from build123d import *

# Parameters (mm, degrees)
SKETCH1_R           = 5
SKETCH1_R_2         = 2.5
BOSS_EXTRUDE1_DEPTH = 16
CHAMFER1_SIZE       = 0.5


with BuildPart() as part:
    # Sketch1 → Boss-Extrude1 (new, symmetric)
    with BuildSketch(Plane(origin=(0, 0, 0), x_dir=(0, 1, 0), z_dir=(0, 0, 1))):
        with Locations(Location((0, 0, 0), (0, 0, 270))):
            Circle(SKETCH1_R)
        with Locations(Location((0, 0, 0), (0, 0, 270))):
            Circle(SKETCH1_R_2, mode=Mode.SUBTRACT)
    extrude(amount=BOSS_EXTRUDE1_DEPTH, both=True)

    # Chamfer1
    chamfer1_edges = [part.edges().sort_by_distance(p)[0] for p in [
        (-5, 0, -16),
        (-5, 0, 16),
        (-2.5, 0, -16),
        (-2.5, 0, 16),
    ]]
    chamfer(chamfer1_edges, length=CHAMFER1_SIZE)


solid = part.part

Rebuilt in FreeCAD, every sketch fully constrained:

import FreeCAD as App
import Part
import Sketcher

V = App.Vector


def edges_at(feature, points):
    """Names of the edges that pass closest to the given points."""
    edges = feature.Shape.Edges
    near = lambda p: min(range(len(edges)), key=lambda i: edges[i].distToShape(Part.Vertex(*p))[0])
    return sorted({f"Edge{near(p) + 1}" for p in points})

doc = App.newDocument("Part")
body = doc.addObject("PartDesign::Body", "Body")

# Sketch on XY plane
sketch1 = body.newObject("Sketcher::SketchObject", "Sketch")
sketch1.AttachmentSupport = (doc.getObject("XY_Plane"), [""])
sketch1.MapMode = "FlatFace"
sketch1.addGeometry([
    Part.Circle(V(0, 0, 0), V(0, 0, 1), 5),
    Part.Circle(V(0, 0, 0), V(0, 0, 1), 2.5),
], False)
sketch1.addConstraint([
    Sketcher.Constraint("Coincident", 0, 3, -1, 1),
    Sketcher.Constraint("Coincident", 1, 3, -1, 1),
    Sketcher.Constraint("Diameter", 0, 10.0),
    Sketcher.Constraint("Diameter", 1, 5.0),
])
pad1 = body.newObject("PartDesign::Pad", "Pad")
pad1.Profile = sketch1
pad1.Length = 32
pad1.Midplane = True
doc.recompute()

chamfer = body.newObject("PartDesign::Chamfer", "Chamfer")
chamfer.Base = (pad1, edges_at(pad1, [
    (-5, 0, -16),
    (-5, 0, 16),
    (-2.5, 0, -16),
    (-2.5, 0, 16),
]))
chamfer.Size = 0.5

doc.recompute()
